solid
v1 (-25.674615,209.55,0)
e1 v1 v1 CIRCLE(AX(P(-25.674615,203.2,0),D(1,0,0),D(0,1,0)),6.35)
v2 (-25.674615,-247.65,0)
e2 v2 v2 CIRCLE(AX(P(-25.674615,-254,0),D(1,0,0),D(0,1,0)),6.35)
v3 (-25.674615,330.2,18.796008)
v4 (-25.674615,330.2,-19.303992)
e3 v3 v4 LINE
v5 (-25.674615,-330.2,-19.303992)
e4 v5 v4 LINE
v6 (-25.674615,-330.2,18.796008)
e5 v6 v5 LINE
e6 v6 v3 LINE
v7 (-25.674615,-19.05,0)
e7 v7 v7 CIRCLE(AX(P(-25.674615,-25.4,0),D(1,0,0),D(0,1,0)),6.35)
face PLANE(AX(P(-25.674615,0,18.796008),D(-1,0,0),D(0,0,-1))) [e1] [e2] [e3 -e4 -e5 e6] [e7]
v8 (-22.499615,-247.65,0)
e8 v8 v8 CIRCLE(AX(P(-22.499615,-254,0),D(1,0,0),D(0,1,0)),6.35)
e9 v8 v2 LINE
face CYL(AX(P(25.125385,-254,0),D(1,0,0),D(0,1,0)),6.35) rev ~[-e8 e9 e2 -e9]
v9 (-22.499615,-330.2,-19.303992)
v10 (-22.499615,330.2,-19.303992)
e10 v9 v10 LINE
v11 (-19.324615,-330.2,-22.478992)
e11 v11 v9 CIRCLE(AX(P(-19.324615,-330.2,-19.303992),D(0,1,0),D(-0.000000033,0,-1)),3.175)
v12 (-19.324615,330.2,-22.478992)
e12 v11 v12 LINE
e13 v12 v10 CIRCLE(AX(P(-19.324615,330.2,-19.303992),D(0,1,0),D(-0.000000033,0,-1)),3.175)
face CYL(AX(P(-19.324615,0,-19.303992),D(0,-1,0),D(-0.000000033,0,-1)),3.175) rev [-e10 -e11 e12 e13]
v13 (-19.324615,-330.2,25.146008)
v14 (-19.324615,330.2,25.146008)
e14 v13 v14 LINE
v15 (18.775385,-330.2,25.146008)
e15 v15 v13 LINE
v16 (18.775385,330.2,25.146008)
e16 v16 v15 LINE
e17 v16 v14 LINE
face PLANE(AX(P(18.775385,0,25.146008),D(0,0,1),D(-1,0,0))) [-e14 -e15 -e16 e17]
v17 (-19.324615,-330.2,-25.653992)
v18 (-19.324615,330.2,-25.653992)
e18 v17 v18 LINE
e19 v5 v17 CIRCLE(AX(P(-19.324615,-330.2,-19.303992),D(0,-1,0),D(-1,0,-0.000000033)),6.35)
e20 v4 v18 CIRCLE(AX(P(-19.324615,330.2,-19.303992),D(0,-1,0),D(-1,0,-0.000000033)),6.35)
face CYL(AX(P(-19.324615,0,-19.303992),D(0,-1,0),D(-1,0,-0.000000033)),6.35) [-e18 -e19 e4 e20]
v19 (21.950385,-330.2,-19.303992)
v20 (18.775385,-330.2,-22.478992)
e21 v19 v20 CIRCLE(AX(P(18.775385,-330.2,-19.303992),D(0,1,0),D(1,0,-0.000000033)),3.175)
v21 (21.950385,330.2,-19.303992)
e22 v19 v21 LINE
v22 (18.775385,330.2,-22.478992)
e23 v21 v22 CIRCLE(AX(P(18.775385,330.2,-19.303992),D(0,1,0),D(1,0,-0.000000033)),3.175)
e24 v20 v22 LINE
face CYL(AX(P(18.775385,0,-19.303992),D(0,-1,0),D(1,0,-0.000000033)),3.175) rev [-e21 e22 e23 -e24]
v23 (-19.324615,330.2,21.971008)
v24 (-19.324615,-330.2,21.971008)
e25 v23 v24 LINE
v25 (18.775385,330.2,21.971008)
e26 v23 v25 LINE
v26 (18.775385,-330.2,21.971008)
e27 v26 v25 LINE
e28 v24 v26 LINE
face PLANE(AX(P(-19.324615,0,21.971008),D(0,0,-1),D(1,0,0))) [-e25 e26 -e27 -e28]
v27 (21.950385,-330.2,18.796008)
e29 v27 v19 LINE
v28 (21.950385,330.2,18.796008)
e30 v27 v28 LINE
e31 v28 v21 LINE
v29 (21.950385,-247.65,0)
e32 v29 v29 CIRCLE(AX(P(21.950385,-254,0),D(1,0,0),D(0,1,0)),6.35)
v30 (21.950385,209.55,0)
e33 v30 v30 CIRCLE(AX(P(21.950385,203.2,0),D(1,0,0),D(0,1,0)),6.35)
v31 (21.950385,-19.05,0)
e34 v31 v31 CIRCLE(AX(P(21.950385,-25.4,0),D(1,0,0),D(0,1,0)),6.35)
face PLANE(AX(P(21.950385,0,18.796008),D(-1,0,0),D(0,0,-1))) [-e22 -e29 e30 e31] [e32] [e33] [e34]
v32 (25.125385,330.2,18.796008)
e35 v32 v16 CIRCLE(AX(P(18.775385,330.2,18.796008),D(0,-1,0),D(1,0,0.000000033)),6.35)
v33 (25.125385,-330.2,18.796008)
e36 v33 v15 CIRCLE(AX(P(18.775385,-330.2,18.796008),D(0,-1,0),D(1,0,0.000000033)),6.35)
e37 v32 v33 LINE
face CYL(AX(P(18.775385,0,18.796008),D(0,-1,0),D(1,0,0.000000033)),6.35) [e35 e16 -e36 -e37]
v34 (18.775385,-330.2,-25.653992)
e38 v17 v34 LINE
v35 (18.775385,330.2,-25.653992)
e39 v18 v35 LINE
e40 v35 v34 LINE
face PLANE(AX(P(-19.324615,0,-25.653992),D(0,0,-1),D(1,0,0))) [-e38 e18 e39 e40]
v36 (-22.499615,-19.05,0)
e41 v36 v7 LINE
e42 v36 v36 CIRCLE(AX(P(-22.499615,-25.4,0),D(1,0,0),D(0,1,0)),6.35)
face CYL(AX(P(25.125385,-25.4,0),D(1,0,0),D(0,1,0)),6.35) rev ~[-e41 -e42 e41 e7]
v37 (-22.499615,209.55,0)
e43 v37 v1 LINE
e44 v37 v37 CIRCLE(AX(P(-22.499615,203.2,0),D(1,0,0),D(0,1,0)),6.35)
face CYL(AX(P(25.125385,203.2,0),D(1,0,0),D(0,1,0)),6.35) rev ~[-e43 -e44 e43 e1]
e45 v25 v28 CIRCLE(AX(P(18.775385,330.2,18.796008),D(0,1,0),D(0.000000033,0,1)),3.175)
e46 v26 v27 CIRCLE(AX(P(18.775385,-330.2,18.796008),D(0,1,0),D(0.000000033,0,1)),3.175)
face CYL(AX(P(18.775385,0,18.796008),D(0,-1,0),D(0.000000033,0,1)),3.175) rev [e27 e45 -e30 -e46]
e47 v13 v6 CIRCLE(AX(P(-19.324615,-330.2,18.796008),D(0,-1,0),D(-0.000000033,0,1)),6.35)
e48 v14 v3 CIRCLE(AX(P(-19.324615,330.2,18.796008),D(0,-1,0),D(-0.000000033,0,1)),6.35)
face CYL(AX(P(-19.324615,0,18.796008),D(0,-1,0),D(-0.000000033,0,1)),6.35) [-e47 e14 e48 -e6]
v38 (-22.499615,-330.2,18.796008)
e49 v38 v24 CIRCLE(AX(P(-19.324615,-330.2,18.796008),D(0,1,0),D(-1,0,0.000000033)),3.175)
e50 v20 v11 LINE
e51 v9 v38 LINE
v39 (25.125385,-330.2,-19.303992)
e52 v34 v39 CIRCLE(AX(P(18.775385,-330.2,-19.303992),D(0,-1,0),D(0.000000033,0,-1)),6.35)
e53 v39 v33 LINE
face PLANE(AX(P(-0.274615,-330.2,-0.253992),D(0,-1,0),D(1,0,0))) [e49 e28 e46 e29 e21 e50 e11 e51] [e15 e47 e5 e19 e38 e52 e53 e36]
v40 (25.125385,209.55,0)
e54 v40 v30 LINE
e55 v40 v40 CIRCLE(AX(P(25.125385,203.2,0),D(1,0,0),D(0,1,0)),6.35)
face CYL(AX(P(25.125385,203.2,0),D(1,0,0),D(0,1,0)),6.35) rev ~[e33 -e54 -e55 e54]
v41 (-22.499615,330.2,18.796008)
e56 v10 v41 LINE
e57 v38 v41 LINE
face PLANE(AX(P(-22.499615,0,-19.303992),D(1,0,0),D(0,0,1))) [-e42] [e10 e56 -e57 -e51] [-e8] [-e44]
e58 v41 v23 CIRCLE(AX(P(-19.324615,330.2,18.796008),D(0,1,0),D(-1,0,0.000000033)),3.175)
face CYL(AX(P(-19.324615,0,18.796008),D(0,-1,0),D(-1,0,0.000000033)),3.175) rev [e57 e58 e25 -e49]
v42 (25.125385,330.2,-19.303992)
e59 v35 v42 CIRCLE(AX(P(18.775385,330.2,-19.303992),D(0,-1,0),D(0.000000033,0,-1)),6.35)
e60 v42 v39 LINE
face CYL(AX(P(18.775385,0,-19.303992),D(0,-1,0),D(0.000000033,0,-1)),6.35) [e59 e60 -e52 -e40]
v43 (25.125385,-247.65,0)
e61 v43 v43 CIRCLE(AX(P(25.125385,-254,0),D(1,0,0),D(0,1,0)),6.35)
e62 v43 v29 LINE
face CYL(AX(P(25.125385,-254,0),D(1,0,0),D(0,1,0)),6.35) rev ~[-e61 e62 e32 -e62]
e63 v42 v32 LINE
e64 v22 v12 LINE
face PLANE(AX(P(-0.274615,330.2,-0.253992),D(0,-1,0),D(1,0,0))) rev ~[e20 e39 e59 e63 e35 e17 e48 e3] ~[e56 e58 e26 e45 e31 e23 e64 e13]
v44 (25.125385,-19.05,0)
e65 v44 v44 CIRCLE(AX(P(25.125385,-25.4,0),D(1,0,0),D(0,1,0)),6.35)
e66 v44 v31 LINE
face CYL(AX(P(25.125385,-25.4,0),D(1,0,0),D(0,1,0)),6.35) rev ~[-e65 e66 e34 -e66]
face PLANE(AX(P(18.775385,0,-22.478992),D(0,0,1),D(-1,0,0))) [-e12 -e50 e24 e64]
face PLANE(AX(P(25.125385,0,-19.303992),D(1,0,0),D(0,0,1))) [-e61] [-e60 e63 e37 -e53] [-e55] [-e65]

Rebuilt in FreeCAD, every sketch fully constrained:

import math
import FreeCAD as App
import Part
import Sketcher

V = App.Vector
Q = App.Units.Quantity

doc = App.newDocument("Part")
params = doc.addObject("Spreadsheet::Sheet", "Params")
for row, (alias, value) in enumerate([
    ("sketch1_radius", "0.25 in"),
    ("sketch1_width", "1.5 in"),
    ("sketch1_radius2", "0.125 in"),
    ("pad1_length", "26 in"),
    ("sketch2_diameter", "0.5 in"),
], start=1):
    params.set(f"A{row}", alias)
    params.set(f"B{row}", "=" + value)
    params.setAlias(f"B{row}", alias)

body = doc.addObject("PartDesign::Body", "Body")

sketch1 = body.newObject("Sketcher::SketchObject", "Sketch")
sketch1.AttachmentSupport = (doc.getObject("XZ_Plane"), [""])
sketch1.MapMode = "FlatFace"
sketch1.addGeometry(Part.LineSegment(V(-19.324615, -25.653992, 0), V(18.775385, -25.653992, 0)), False)
sketch1.addGeometry(Part.ArcOfCircle(Part.Circle(V(18.775385, -19.303992, 0), V(0, 0, 1), 6.35), math.radians(-89.999998), math.radians(-0.000002)), False)
sketch1.addGeometry(Part.LineSegment(V(25.125385, -19.303992, 0), V(25.125385, 18.796008, 0)), False)
sketch1.addGeometry(Part.ArcOfCircle(Part.Circle(V(18.775385, 18.796008, 0), V(0, 0, 1), 6.35), math.radians(0.000002), math.radians(89.999998)), False)
sketch1.addGeometry(Part.LineSegment(V(18.775385, 25.146008, 0), V(-19.324615, 25.146008, 0)), False)
sketch1.addGeometry(Part.ArcOfCircle(Part.Circle(V(-19.324615, 18.796008, 0), V(0, 0, 1), 6.35), math.radians(90.000002), math.radians(179.999998)), False)
sketch1.addGeometry(Part.LineSegment(V(-25.674615, 18.796008, 0), V(-25.674615, -19.303992, 0)), False)
sketch1.addGeometry(Part.ArcOfCircle(Part.Circle(V(-19.324615, -19.303992, 0), V(0, 0, 1), 6.35), math.radians(-179.999998), math.radians(-90.000002)), False)
sketch1.addGeometry(Part.ArcOfCircle(Part.Circle(V(-19.324615, 18.796008, 0), V(0, 0, 1), 3.175), math.radians(90.000002), math.radians(179.999998)), False)
sketch1.addGeometry(Part.LineSegment(V(-19.324615, 21.971008, 0), V(18.775385, 21.971008, 0)), False)
sketch1.addGeometry(Part.ArcOfCircle(Part.Circle(V(18.775385, 18.796008, 0), V(0, 0, 1), 3.175), math.radians(0.000002), math.radians(89.999998)), False)
sketch1.addGeometry(Part.LineSegment(V(21.950385, 18.796008, 0), V(21.950385, -19.303992, 0)), False)
sketch1.addGeometry(Part.ArcOfCircle(Part.Circle(V(18.775385, -19.303992, 0), V(0, 0, 1), 3.175), math.radians(-89.999998), math.radians(-0.000002)), False)
sketch1.addGeometry(Part.LineSegment(V(18.775385, -22.478992, 0), V(-19.324615, -22.478992, 0)), False)
sketch1.addGeometry(Part.ArcOfCircle(Part.Circle(V(-19.324615, -19.303992, 0), V(0, 0, 1), 3.175), math.radians(-179.999998), math.radians(-90.000002)), False)
sketch1.addGeometry(Part.LineSegment(V(-22.499615, -19.303992, 0), V(-22.499615, 18.796008, 0)), False)
sketch1.addConstraint(Sketcher.Constraint("Tangent", 0, 2, 1, 1))
sketch1.addConstraint(Sketcher.Constraint("Tangent", 1, 2, 2, 1))
sketch1.addConstraint(Sketcher.Constraint("Tangent", 2, 2, 3, 1))
sketch1.addConstraint(Sketcher.Constraint("Tangent", 3, 2, 4, 1))
sketch1.addConstraint(Sketcher.Constraint("Tangent", 4, 2, 5, 1))
sketch1.addConstraint(Sketcher.Constraint("Tangent", 5, 2, 6, 1))
sketch1.addConstraint(Sketcher.Constraint("Tangent", 6, 2, 7, 1))
sketch1.addConstraint(Sketcher.Constraint("Tangent", 7, 2, 0, 1))
sketch1.addConstraint(Sketcher.Constraint("Tangent", 8, 1, 9, 1))
sketch1.addConstraint(Sketcher.Constraint("Tangent", 9, 2, 10, 2))
sketch1.addConstraint(Sketcher.Constraint("Tangent", 10, 1, 11, 1))
sketch1.addConstraint(Sketcher.Constraint("Tangent", 11, 2, 12, 2))
sketch1.addConstraint(Sketcher.Constraint("Tangent", 12, 1, 13, 1))
sketch1.addConstraint(Sketcher.Constraint("Tangent", 13, 2, 14, 2))
sketch1.addConstraint(Sketcher.Constraint("Tangent", 14, 1, 15, 1))
sketch1.addConstraint(Sketcher.Constraint("Tangent", 15, 2, 8, 2))
sketch1.addConstraint(Sketcher.Constraint("Horizontal", 0))
sketch1.addConstraint(Sketcher.Constraint("Vertical", 2))
sketch1.addConstraint(Sketcher.Constraint("Horizontal", 4))
sketch1.addConstraint(Sketcher.Constraint("Vertical", 6))
sketch1.addConstraint(Sketcher.Constraint("Horizontal", 9))
sketch1.addConstraint(Sketcher.Constraint("Vertical", 11))
sketch1.addConstraint(Sketcher.Constraint("Horizontal", 13))
sketch1.addConstraint(Sketcher.Constraint("Vertical", 15))
sketch1.addConstraint(Sketcher.Constraint("Coincident", 8, 3, 5, 3))
sketch1.addConstraint(Sketcher.Constraint("Coincident", 10, 3, 3, 3))
sketch1.addConstraint(Sketcher.Constraint("Coincident", 12, 3, 1, 3))
sketch1.addConstraint(Sketcher.Constraint("Equal", 1, 3))
sketch1.addConstraint(Sketcher.Constraint("Equal", 3, 5))
sketch1.addConstraint(Sketcher.Constraint("Equal", 5, 7))
sketch1.addConstraint(Sketcher.Constraint("Equal", 12, 14))
sketch1.addConstraint(Sketcher.Constraint("Equal", 13, 2))
sketch1.addConstraint(Sketcher.Constraint("Radius", 1, Q("0.25 in")))
sketch1.addConstraint(Sketcher.Constraint("DistanceX", 0, 1, 0, 2, Q("1.5 in")))
sketch1.addConstraint(Sketcher.Constraint("Radius", 8, Q("0.125 in")))
sketch1.addConstraint(Sketcher.Constraint("DistanceY", 1, 3, -1, 1, Q("19.303992 mm")))
sketch1.addConstraint(Sketcher.Constraint("DistanceX", -1, 1, 1, 3, Q("18.775385 mm")))
sketch1.setExpression("Constraints[32]", "Params.sketch1_radius")
sketch1.setExpression("Constraints[33]", "Params.sketch1_width")
sketch1.setExpression("Constraints[34]", "Params.sketch1_radius2")
pad1 = body.newObject("PartDesign::Pad", "Pad")
pad1.Profile = sketch1
pad1.setExpression("Length", "Params.pad1_length")
pad1.Midplane = True

sketch2 = body.newObject("Sketcher::SketchObject", "Sketch001")
sketch2.AttachmentSupport = (doc.getObject("YZ_Plane"), [""])
sketch2.MapMode = "FlatFace"
sketch2.AttachmentOffset = App.Placement(V(0, 0, 25.125385), App.Rotation())
sketch2.addGeometry(Part.Circle(V(-254, 0, 0), V(0, 0, 1), 6.35), False)
sketch2.addGeometry(Part.Circle(V(203.2, 0, 0), V(0, 0, 1), 6.35), False)
sketch2.addGeometry(Part.Circle(V(-25.4, 0, 0), V(0, 0, 1), 6.35), False)
sketch2.addConstraint(Sketcher.Constraint("Equal", 0, 1))
sketch2.addConstraint(Sketcher.Constraint("Equal", 1, 2))
sketch2.addConstraint(Sketcher.Constraint("PointOnObject", 0, 3, -1))
sketch2.addConstraint(Sketcher.Constraint("PointOnObject", 1, 3, -1))
sketch2.addConstraint(Sketcher.Constraint("PointOnObject", 2, 3, -1))
sketch2.addConstraint(Sketcher.Constraint("Diameter", 0, Q("0.5 in")))
sketch2.addConstraint(Sketcher.Constraint("DistanceX", 0, 3, -1, 1, Q("10 in")))
sketch2.addConstraint(Sketcher.Constraint("DistanceX", -1, 1, 1, 3, Q("8 in")))
sketch2.addConstraint(Sketcher.Constraint("DistanceX", 2, 3, -1, 1, Q("1 in")))
sketch2.setExpression("Constraints[5]", "Params.sketch2_diameter")
pocket1 = body.newObject("PartDesign::Pocket", "Pocket")
pocket1.Profile = sketch2
pocket1.Type = "ThroughAll"

doc.recompute()
